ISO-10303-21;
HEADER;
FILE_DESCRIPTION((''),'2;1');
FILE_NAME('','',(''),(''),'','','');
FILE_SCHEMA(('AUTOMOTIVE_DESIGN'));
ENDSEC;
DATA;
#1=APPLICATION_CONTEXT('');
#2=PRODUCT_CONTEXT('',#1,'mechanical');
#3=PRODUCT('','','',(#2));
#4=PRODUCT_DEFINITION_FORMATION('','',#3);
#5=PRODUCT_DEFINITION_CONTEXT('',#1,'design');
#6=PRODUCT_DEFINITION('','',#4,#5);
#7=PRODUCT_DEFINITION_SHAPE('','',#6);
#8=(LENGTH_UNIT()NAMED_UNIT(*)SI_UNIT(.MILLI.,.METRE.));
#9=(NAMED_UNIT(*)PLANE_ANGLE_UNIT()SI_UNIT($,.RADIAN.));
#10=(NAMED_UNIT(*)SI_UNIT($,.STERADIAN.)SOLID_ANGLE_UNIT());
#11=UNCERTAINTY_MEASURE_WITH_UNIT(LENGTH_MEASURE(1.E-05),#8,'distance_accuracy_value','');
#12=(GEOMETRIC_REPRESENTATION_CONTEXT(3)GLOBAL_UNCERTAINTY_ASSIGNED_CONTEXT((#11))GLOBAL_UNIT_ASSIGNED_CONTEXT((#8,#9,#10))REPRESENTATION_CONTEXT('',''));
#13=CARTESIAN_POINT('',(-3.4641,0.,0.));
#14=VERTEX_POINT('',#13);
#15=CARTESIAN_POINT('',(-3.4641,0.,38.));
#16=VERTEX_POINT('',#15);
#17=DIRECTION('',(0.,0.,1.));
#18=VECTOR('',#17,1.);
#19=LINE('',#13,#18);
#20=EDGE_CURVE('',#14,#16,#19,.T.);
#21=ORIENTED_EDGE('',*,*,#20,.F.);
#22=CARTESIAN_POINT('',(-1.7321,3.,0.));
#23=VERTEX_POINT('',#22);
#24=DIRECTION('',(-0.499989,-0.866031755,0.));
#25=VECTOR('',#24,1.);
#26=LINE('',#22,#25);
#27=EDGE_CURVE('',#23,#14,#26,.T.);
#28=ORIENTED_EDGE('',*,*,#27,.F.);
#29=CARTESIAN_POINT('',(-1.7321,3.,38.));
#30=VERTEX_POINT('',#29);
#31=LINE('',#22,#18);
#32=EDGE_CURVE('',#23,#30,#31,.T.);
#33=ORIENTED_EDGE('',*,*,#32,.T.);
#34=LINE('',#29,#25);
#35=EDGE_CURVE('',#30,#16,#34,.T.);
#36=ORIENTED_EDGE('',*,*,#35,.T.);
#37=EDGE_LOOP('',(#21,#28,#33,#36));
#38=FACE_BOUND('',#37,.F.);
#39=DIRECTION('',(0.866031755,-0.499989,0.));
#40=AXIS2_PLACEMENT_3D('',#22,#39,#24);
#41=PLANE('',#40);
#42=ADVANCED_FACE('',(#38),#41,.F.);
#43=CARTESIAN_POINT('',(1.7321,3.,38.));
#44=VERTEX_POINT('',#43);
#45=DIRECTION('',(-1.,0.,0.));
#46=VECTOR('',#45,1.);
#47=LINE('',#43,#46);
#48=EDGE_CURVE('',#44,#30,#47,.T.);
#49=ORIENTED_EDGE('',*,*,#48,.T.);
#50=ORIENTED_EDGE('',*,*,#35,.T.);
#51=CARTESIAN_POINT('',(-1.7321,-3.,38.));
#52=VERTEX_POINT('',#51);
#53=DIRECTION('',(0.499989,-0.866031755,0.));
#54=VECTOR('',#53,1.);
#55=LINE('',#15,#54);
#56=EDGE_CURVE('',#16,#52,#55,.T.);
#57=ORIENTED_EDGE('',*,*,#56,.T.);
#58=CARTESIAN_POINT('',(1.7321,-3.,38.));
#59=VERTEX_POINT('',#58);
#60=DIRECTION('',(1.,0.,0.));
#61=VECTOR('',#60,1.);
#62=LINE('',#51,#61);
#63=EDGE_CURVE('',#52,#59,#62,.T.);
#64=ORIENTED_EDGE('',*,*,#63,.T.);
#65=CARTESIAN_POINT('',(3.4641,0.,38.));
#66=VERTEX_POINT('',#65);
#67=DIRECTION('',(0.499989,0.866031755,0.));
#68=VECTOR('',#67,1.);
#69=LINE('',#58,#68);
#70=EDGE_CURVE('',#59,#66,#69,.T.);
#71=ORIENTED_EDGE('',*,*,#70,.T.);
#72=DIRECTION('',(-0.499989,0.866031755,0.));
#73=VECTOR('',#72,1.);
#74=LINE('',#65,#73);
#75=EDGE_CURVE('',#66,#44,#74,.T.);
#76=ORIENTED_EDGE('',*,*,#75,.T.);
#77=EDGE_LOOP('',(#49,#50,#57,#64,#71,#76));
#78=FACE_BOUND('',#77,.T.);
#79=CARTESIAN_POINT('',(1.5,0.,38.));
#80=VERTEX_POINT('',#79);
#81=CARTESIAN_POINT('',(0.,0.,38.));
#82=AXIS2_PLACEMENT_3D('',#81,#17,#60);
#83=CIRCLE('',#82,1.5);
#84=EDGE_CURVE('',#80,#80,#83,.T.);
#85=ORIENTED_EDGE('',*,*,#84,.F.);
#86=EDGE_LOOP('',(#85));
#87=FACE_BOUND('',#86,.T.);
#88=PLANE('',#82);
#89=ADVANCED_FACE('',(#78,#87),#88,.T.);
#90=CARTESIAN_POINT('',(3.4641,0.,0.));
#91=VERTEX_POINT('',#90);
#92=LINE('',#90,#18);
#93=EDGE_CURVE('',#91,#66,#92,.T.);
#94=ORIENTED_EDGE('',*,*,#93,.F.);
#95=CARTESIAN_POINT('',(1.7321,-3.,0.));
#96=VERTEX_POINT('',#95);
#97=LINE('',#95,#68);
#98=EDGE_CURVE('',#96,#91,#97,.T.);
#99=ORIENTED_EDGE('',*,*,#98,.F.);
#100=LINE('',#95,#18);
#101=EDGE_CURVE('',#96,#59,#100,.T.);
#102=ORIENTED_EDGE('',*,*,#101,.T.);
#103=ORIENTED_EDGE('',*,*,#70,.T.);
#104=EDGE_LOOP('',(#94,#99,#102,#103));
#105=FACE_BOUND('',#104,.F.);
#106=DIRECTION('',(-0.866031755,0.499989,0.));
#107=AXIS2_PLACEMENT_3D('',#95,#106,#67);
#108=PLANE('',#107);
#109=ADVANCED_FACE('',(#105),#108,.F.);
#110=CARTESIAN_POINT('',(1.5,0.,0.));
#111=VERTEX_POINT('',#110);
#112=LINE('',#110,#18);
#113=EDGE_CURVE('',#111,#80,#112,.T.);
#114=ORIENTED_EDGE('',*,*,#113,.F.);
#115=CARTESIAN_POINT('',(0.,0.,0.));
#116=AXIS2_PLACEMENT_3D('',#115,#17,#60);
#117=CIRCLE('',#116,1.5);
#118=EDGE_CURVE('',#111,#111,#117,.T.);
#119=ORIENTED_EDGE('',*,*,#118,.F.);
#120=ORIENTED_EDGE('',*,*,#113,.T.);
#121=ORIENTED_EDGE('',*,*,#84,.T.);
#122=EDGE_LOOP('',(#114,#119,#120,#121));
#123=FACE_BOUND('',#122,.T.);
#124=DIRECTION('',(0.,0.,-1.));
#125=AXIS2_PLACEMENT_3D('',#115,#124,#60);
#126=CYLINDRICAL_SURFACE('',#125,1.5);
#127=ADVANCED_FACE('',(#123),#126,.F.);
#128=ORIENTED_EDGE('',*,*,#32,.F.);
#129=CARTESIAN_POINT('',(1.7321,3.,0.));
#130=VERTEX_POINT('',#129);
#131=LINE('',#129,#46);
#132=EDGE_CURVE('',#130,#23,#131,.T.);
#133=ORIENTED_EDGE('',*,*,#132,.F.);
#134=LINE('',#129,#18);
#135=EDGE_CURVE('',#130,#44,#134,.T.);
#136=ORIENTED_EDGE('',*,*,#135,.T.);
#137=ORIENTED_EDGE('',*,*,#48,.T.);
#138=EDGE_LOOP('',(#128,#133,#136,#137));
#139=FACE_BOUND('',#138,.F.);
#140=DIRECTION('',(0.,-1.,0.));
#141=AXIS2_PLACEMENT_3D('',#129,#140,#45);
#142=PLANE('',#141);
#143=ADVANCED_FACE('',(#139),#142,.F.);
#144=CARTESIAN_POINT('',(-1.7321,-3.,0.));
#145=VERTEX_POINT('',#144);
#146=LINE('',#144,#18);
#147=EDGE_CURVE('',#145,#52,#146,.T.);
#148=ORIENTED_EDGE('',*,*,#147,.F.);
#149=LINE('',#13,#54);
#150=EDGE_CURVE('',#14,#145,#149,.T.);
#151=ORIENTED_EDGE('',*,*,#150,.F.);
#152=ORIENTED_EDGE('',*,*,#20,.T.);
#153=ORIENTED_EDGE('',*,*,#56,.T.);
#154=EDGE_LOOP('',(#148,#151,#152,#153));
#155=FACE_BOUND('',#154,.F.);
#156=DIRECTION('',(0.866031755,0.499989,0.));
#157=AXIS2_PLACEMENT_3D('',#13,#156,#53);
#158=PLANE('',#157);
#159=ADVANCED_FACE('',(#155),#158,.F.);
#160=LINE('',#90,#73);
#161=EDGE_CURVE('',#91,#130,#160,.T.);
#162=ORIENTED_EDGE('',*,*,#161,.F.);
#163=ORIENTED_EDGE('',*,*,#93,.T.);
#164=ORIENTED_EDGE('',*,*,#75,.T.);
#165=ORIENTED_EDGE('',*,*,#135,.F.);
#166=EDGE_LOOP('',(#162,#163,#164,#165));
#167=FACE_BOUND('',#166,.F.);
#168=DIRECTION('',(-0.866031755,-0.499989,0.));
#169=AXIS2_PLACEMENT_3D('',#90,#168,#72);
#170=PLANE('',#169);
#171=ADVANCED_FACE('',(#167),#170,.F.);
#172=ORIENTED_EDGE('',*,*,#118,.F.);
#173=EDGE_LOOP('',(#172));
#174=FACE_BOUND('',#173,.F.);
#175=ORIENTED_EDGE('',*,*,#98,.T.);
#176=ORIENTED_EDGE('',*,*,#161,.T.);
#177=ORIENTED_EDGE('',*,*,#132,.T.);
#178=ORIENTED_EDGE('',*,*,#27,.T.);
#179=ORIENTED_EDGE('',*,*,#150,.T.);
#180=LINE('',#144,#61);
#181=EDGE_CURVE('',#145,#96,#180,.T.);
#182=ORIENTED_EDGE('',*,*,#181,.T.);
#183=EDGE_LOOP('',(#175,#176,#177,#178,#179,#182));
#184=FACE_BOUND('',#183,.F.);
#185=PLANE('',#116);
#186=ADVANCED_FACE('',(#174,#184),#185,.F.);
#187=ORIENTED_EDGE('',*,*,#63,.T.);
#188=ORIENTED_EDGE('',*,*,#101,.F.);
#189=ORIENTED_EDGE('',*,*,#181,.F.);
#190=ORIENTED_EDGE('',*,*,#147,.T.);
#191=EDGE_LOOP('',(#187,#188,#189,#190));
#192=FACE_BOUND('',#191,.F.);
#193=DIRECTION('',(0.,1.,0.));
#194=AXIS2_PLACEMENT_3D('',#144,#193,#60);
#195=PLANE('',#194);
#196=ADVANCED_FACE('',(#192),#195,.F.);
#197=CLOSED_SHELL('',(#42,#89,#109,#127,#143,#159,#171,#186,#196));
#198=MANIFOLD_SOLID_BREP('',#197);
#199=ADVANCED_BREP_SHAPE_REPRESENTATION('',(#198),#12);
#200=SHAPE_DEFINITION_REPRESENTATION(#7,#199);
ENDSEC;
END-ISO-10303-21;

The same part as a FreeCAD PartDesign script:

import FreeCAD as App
import Part
import Sketcher

V = App.Vector
Q = App.Units.Quantity


def add_polygon(sketch, points):
    """Adds a closed chain of lines whose ends are joined by coincident constraints."""
    first, n = sketch.GeometryCount, len(points)
    for a, b in zip(points, points[1:] + points[:1]):
        sketch.addGeometry(Part.LineSegment(App.Vector(*a, 0), App.Vector(*b, 0)), False)
    for i in range(n):
        sketch.addConstraint(Sketcher.Constraint("Coincident", first + i, 2, first + (i + 1) % n, 1))

doc = App.newDocument("Part")
body = doc.addObject("PartDesign::Body", "Body")

# Sketch on XY plane
sketch1 = body.newObject("Sketcher::SketchObject", "Sketch")
sketch1.AttachmentSupport = (doc.getObject("XY_Plane"), [""])
sketch1.MapMode = "FlatFace"
add_polygon(sketch1, [(-1.7, -3), (1.7, -3), (3.5, 0), (1.7, 3), (-1.7, 3), (-3.5, 0)])  # lines 0-5
sketch1.addGeometry(Part.Circle(V(0, 0, 0), V(0, 0, 1), 1.5), False)  # 6
sketch1.addConstraint(Sketcher.Constraint("Horizontal", 0))
sketch1.addConstraint(Sketcher.Constraint("Horizontal", 3))
sketch1.addConstraint(Sketcher.Constraint("Coincident", 6, 3, -1, 1))
sketch1.addConstraint(Sketcher.Constraint("Symmetric", 0, 2, 3, 2, -1, 1))
sketch1.addConstraint(Sketcher.Constraint("Symmetric", 1, 2, 4, 2, -1, 1))
sketch1.addConstraint(Sketcher.Constraint("PointOnObject", 1, 2, -1))
sketch1.addConstraint(Sketcher.Constraint("Parallel", 2, 5))
sketch1.addConstraint(Sketcher.Constraint("Vertical", 0, 2, 2, 2))
sketch1.addConstraint(Sketcher.Constraint("Diameter", 6, Q("3 mm")))
sketch1.addConstraint(Sketcher.Constraint("DistanceY", 0, 2, -1, 1, Q("3 mm")))
sketch1.addConstraint(Sketcher.Constraint("Angle", 1, Q("60.0007 deg")))
sketch1.addConstraint(Sketcher.Constraint("DistanceX", 0, 1, 0, 2, Q("3.4642 mm")))
pad1 = body.newObject("PartDesign::Pad", "Pad")
pad1.Profile = sketch1
pad1.Length = 38

doc.recompute()
